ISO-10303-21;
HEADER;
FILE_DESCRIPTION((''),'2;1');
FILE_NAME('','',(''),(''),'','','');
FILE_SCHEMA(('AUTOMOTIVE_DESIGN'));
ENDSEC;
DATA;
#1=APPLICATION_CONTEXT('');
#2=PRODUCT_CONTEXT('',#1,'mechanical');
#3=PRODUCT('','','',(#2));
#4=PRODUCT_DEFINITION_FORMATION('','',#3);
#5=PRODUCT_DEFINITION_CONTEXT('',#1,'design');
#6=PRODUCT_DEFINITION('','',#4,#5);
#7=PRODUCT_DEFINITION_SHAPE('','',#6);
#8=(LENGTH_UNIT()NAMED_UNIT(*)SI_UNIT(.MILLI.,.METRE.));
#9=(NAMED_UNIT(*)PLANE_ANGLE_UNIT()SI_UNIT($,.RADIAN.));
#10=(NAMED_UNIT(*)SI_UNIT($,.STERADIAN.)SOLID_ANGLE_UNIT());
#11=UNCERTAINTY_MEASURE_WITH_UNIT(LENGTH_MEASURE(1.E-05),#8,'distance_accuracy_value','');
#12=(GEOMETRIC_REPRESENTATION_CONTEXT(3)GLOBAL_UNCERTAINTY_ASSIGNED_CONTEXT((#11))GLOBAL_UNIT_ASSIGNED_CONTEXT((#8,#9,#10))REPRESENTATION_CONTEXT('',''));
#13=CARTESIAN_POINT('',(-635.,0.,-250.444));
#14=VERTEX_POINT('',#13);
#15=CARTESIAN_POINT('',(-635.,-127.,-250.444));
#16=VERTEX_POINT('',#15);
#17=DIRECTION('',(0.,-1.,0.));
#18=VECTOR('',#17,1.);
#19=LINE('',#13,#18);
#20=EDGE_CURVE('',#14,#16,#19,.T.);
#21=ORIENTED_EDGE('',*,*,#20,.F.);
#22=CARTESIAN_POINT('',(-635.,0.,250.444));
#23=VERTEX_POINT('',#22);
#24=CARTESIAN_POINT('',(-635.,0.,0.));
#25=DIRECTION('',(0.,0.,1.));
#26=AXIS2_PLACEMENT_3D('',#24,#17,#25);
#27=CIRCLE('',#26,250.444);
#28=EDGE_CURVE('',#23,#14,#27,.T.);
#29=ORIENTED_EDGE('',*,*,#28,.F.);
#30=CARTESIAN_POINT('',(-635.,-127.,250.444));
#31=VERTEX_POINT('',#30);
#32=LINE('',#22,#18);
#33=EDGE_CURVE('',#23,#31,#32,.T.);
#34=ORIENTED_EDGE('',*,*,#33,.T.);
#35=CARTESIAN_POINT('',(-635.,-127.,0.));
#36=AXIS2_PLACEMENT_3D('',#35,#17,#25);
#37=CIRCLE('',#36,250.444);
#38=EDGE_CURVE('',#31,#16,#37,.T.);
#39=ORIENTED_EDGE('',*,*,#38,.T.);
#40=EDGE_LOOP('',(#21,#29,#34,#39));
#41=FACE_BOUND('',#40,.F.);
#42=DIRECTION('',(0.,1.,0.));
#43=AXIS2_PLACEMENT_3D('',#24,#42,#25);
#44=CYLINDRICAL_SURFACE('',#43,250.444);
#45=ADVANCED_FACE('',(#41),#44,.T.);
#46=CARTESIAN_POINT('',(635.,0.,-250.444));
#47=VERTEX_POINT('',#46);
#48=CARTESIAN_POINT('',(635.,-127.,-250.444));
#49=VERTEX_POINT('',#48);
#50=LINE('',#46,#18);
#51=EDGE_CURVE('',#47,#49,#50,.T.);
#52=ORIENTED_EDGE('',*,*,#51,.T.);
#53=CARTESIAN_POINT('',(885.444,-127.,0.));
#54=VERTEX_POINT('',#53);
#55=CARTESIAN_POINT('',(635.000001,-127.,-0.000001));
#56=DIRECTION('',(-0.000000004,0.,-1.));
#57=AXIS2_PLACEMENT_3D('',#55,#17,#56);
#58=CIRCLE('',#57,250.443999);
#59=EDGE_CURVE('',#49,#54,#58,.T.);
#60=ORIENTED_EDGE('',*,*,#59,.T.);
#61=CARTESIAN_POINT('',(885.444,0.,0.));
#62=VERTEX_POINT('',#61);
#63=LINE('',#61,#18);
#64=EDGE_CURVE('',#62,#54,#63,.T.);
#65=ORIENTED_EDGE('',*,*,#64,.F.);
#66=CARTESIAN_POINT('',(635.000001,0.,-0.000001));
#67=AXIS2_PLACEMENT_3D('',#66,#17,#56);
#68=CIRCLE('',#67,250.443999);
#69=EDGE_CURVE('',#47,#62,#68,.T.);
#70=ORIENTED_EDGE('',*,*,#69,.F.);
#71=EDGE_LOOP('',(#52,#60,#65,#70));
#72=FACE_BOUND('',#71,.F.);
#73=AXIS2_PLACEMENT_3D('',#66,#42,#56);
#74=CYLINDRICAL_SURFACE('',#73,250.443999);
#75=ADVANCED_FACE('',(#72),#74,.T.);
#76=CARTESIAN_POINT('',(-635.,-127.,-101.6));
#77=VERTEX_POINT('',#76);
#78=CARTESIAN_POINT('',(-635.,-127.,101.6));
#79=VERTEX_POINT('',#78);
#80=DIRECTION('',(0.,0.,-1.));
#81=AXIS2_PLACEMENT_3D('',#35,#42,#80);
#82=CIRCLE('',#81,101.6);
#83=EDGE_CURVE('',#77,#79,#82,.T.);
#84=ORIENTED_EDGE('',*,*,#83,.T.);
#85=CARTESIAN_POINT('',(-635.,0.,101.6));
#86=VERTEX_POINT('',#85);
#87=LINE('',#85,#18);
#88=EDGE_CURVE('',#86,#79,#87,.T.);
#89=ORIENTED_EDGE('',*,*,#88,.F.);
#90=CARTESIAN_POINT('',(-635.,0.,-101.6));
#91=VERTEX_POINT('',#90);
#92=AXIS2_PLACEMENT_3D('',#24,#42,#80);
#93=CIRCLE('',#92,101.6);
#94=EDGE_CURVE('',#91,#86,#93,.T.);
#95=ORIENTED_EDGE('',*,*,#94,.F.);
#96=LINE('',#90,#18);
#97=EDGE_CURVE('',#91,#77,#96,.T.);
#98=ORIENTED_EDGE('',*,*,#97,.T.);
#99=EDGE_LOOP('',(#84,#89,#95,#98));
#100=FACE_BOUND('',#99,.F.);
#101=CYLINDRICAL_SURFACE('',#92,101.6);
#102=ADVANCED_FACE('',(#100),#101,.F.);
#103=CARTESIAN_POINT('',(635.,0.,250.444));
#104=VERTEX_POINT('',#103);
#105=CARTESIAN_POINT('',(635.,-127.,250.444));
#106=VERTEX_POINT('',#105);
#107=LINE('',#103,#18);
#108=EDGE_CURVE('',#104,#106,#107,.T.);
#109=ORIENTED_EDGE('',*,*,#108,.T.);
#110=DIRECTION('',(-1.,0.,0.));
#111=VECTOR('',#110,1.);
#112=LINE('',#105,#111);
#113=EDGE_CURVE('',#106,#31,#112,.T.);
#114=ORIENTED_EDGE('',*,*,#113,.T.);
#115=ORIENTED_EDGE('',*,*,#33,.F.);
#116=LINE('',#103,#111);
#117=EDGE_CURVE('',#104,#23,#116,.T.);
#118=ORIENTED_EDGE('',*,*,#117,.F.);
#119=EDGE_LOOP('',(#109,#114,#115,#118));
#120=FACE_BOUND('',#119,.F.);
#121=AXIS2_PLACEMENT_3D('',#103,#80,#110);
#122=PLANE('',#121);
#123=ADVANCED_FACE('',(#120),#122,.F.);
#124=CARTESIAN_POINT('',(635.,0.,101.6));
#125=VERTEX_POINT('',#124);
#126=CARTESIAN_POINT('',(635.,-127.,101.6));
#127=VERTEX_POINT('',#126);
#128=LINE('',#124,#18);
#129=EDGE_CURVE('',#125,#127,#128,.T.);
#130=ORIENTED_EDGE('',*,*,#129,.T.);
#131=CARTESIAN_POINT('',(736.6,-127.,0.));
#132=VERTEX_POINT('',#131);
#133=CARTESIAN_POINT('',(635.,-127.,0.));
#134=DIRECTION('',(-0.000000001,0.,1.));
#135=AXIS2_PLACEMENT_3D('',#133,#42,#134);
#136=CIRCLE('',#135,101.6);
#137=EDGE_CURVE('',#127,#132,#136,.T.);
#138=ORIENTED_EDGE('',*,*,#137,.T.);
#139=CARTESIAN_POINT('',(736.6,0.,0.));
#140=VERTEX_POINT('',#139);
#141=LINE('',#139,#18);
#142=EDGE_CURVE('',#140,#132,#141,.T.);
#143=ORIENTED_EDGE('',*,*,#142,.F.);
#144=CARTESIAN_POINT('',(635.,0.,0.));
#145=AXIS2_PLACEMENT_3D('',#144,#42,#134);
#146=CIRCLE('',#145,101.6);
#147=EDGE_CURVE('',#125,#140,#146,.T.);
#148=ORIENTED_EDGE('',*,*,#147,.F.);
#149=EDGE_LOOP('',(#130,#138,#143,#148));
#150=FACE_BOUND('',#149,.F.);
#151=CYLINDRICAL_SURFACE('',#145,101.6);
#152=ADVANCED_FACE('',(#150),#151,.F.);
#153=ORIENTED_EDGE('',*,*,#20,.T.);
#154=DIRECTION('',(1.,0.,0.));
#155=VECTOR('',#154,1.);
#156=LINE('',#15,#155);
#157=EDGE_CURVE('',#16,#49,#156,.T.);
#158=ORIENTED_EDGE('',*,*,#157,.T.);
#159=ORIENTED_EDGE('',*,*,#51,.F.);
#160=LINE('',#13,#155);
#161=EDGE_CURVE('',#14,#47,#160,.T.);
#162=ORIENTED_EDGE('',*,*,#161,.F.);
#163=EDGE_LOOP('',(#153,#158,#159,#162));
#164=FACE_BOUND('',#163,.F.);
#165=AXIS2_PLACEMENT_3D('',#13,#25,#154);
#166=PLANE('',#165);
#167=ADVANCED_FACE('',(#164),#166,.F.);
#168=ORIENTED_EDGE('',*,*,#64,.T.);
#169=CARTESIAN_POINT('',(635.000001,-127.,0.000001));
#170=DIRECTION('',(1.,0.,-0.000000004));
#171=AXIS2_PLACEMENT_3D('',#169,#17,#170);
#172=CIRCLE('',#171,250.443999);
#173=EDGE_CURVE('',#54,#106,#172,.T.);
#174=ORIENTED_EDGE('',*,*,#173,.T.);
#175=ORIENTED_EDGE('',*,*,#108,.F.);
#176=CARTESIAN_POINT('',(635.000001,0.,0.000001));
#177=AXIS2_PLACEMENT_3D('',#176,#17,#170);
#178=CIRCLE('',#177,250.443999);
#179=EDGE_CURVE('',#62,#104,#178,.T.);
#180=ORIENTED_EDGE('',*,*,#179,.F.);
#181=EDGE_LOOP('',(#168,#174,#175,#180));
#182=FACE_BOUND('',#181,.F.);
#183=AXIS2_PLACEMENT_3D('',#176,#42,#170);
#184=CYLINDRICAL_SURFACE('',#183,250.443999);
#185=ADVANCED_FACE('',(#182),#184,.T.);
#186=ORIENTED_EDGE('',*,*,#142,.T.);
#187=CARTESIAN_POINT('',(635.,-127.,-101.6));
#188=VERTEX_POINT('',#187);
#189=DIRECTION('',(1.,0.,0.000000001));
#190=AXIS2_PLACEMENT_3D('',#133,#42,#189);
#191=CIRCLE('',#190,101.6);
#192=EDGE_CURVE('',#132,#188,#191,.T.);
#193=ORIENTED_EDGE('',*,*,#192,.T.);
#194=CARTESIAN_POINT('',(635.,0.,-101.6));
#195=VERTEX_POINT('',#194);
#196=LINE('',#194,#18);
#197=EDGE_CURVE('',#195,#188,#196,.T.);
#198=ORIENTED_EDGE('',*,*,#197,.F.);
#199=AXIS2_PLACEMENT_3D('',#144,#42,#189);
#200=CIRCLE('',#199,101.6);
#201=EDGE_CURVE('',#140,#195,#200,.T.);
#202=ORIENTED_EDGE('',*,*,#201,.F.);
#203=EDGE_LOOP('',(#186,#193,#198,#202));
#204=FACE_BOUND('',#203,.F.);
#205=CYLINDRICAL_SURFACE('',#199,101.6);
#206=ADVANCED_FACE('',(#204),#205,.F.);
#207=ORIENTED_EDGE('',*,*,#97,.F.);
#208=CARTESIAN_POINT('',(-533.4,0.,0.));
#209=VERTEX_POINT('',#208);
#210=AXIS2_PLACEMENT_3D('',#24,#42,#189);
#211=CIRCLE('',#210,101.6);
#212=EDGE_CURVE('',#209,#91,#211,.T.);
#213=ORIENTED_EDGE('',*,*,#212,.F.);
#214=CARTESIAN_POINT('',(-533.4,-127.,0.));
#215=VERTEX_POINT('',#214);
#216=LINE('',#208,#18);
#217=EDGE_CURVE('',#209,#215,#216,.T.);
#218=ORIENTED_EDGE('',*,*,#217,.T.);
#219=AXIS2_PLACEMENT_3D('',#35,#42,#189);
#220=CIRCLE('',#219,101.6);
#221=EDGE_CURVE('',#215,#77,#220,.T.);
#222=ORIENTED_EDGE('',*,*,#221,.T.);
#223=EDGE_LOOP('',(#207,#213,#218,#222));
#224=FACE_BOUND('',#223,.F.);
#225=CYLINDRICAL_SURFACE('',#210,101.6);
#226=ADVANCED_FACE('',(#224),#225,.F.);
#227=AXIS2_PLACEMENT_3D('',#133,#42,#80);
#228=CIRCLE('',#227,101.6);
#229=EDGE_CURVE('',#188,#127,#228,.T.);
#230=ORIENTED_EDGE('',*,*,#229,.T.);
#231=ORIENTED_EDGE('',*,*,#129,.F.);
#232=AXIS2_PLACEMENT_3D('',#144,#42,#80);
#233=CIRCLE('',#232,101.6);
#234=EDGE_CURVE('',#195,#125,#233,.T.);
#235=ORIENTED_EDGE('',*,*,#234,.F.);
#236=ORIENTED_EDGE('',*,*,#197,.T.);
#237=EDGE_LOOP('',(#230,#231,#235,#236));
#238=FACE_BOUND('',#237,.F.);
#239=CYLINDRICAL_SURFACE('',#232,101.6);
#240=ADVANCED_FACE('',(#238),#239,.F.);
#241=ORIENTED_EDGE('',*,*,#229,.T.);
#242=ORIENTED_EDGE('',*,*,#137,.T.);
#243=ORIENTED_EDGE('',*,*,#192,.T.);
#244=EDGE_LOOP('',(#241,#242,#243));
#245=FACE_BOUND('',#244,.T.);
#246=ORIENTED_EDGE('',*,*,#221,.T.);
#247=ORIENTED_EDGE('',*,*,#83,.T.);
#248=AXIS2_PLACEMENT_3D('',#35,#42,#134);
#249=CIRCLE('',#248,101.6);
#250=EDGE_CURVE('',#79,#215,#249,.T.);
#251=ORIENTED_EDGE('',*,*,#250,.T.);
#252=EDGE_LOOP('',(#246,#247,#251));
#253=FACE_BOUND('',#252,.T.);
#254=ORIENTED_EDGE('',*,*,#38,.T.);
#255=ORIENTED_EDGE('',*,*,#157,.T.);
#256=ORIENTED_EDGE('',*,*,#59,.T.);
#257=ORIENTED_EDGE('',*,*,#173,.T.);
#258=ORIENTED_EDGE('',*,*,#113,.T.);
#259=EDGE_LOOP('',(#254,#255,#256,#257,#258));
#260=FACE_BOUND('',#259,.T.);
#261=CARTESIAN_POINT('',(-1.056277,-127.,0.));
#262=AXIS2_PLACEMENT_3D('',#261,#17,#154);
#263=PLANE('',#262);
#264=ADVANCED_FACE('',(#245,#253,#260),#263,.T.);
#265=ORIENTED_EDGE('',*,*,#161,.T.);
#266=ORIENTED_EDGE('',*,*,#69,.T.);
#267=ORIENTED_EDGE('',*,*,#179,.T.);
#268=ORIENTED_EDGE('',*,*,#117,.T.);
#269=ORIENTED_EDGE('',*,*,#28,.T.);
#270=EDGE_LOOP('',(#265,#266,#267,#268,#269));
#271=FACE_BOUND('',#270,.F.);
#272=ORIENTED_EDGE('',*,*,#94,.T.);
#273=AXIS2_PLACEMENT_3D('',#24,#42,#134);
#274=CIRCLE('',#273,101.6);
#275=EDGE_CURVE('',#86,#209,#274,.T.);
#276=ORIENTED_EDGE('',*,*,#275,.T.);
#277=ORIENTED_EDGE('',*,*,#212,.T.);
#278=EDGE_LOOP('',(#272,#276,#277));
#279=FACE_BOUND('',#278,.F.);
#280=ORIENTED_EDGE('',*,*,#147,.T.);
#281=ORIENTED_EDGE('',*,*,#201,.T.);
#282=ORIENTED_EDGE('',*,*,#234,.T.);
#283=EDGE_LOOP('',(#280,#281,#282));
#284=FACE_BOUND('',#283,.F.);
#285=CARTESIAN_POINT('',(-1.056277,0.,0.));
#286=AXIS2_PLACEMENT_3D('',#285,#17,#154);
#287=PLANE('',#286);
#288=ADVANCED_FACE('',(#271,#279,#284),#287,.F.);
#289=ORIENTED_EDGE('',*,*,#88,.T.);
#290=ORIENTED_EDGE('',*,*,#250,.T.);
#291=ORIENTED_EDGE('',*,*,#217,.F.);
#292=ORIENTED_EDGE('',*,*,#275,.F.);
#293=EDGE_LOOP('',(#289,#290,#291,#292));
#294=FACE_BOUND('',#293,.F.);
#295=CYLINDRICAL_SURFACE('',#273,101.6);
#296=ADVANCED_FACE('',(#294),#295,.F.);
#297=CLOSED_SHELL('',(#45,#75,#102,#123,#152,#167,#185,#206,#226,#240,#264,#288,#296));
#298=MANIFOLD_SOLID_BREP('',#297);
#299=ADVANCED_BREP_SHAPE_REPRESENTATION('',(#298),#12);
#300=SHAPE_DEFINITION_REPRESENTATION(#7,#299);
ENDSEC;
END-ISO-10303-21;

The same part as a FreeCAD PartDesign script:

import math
import FreeCAD as App
import Part
import Sketcher
from FreeCAD import Vector
Q = App.Units.Quantity

doc = App.newDocument("Part")
params = doc.addObject("Spreadsheet::Sheet", "Params")
for row, (alias, value) in enumerate([
    ("sketch1_radius", "4 in"),
    ("sketch1_width", "50 in"),
    ("sketch1_radius2", "9.86 in"),
    ("pad1_length", "5 in"),
], start=1):
    params.set(f"A{row}", alias)
    params.set(f"B{row}", "=" + value)
    params.setAlias(f"B{row}", alias)

body = doc.addObject("PartDesign::Body", "Body")

# Sketch on XZ plane
sketch1 = doc.addObject("Sketcher::SketchObject", "Sketch")
body.addObject(sketch1)
sketch1.AttachmentSupport = (doc.XZ_Plane, [""])
sketch1.MapMode = "FlatFace"
sketch1.addGeometry([
    Part.LineSegment(Vector(635, 250.444, 0), Vector(-635, 250.444, 0)),  # 0
    Part.ArcOfCircle(Part.Circle(Vector(-635, 0, 0), Vector(0, 0, 1), 250.444), math.radians(90), math.radians(270)),  # 1
    Part.LineSegment(Vector(-635, -250.444, 0), Vector(635, -250.444, 0)),  # 2
    Part.ArcOfCircle(Part.Circle(Vector(635.000001, -0.000001, 0), Vector(0, 0, 1), 250.443999), math.radians(-90), math.radians(0)),  # 3
    Part.ArcOfCircle(Part.Circle(Vector(635.000001, 0.000001, 0), Vector(0, 0, 1), 250.443999), math.radians(0), math.radians(90)),  # 4
    Part.ArcOfCircle(Part.Circle(Vector(635, 0, 0), Vector(0, 0, 1), 101.6), math.radians(90), math.radians(270)),  # 5
    Part.ArcOfCircle(Part.Circle(Vector(635, 0, 0), Vector(0, 0, 1), 101.6), math.radians(0), math.radians(90)),  # 6
    Part.ArcOfCircle(Part.Circle(Vector(635, 0, 0), Vector(0, 0, 1), 101.6), math.radians(-90), math.radians(0)),  # 7
    Part.ArcOfCircle(Part.Circle(Vector(-635, 0, 0), Vector(0, 0, 1), 101.6), math.radians(0), math.radians(90)),  # 8
    Part.ArcOfCircle(Part.Circle(Vector(-635, 0, 0), Vector(0, 0, 1), 101.6), math.radians(-90), math.radians(0)),  # 9
    Part.ArcOfCircle(Part.Circle(Vector(-635, 0, 0), Vector(0, 0, 1), 101.6), math.radians(90), math.radians(270)),  # 10
], False)
sketch1.addConstraint([
    Sketcher.Constraint("Tangent", 0, 2, 1, 1),
    Sketcher.Constraint("Tangent", 1, 2, 2, 1),
    Sketcher.Constraint("Tangent", 2, 2, 3, 1),
    Sketcher.Constraint("Tangent", 3, 2, 4, 1),
    Sketcher.Constraint("Tangent", 4, 2, 0, 1),
    Sketcher.Constraint("Tangent", 5, 1, 6, 2),
    Sketcher.Constraint("Tangent", 6, 1, 7, 2),
    Sketcher.Constraint("Tangent", 7, 1, 5, 2),
    Sketcher.Constraint("Tangent", 8, 1, 9, 2),
    Sketcher.Constraint("Tangent", 9, 1, 10, 2),
    Sketcher.Constraint("Tangent", 10, 1, 8, 2),
    Sketcher.Constraint("Horizontal", 0),
    Sketcher.Constraint("Horizontal", 2),
    Sketcher.Constraint("Coincident", 5, 3, 3, 3),
    Sketcher.Constraint("Coincident", 8, 3, 1, 3),
    Sketcher.Constraint("Equal", 1, 3),
    Sketcher.Constraint("Equal", 7, 8),
    Sketcher.Constraint("Symmetric", 1, 3, 3, 3, -1, 1),
    Sketcher.Constraint("PointOnObject", 3, 2, -1),
    Sketcher.Constraint("PointOnObject", 6, 1, -1),
    Sketcher.Constraint("PointOnObject", 8, 1, -1),
    Sketcher.Constraint("Vertical", 4, 2, 5, 1),
    Sketcher.Constraint("Vertical", 5, 1, 7, 1),
    Sketcher.Constraint("Vertical", 1, 2, 9, 1),
    Sketcher.Constraint("Vertical", 9, 1, 10, 1),
    Sketcher.Constraint("Radius", 5, Q("4 in")),
    Sketcher.Constraint("DistanceX", 0, 2, 0, 1, Q("50 in")),
    Sketcher.Constraint("Radius", 1, Q("9.86 in")),
])
sketch1.setExpression("Constraints[25]", "Params.sketch1_radius")
sketch1.setExpression("Constraints[26]", "Params.sketch1_width")
sketch1.setExpression("Constraints[27]", "Params.sketch1_radius2")
pad1 = doc.addObject("PartDesign::Pad", "Pad")
body.addObject(pad1)
pad1.Profile = sketch1
pad1.setExpression("Length", "Params.pad1_length")

doc.recompute()
